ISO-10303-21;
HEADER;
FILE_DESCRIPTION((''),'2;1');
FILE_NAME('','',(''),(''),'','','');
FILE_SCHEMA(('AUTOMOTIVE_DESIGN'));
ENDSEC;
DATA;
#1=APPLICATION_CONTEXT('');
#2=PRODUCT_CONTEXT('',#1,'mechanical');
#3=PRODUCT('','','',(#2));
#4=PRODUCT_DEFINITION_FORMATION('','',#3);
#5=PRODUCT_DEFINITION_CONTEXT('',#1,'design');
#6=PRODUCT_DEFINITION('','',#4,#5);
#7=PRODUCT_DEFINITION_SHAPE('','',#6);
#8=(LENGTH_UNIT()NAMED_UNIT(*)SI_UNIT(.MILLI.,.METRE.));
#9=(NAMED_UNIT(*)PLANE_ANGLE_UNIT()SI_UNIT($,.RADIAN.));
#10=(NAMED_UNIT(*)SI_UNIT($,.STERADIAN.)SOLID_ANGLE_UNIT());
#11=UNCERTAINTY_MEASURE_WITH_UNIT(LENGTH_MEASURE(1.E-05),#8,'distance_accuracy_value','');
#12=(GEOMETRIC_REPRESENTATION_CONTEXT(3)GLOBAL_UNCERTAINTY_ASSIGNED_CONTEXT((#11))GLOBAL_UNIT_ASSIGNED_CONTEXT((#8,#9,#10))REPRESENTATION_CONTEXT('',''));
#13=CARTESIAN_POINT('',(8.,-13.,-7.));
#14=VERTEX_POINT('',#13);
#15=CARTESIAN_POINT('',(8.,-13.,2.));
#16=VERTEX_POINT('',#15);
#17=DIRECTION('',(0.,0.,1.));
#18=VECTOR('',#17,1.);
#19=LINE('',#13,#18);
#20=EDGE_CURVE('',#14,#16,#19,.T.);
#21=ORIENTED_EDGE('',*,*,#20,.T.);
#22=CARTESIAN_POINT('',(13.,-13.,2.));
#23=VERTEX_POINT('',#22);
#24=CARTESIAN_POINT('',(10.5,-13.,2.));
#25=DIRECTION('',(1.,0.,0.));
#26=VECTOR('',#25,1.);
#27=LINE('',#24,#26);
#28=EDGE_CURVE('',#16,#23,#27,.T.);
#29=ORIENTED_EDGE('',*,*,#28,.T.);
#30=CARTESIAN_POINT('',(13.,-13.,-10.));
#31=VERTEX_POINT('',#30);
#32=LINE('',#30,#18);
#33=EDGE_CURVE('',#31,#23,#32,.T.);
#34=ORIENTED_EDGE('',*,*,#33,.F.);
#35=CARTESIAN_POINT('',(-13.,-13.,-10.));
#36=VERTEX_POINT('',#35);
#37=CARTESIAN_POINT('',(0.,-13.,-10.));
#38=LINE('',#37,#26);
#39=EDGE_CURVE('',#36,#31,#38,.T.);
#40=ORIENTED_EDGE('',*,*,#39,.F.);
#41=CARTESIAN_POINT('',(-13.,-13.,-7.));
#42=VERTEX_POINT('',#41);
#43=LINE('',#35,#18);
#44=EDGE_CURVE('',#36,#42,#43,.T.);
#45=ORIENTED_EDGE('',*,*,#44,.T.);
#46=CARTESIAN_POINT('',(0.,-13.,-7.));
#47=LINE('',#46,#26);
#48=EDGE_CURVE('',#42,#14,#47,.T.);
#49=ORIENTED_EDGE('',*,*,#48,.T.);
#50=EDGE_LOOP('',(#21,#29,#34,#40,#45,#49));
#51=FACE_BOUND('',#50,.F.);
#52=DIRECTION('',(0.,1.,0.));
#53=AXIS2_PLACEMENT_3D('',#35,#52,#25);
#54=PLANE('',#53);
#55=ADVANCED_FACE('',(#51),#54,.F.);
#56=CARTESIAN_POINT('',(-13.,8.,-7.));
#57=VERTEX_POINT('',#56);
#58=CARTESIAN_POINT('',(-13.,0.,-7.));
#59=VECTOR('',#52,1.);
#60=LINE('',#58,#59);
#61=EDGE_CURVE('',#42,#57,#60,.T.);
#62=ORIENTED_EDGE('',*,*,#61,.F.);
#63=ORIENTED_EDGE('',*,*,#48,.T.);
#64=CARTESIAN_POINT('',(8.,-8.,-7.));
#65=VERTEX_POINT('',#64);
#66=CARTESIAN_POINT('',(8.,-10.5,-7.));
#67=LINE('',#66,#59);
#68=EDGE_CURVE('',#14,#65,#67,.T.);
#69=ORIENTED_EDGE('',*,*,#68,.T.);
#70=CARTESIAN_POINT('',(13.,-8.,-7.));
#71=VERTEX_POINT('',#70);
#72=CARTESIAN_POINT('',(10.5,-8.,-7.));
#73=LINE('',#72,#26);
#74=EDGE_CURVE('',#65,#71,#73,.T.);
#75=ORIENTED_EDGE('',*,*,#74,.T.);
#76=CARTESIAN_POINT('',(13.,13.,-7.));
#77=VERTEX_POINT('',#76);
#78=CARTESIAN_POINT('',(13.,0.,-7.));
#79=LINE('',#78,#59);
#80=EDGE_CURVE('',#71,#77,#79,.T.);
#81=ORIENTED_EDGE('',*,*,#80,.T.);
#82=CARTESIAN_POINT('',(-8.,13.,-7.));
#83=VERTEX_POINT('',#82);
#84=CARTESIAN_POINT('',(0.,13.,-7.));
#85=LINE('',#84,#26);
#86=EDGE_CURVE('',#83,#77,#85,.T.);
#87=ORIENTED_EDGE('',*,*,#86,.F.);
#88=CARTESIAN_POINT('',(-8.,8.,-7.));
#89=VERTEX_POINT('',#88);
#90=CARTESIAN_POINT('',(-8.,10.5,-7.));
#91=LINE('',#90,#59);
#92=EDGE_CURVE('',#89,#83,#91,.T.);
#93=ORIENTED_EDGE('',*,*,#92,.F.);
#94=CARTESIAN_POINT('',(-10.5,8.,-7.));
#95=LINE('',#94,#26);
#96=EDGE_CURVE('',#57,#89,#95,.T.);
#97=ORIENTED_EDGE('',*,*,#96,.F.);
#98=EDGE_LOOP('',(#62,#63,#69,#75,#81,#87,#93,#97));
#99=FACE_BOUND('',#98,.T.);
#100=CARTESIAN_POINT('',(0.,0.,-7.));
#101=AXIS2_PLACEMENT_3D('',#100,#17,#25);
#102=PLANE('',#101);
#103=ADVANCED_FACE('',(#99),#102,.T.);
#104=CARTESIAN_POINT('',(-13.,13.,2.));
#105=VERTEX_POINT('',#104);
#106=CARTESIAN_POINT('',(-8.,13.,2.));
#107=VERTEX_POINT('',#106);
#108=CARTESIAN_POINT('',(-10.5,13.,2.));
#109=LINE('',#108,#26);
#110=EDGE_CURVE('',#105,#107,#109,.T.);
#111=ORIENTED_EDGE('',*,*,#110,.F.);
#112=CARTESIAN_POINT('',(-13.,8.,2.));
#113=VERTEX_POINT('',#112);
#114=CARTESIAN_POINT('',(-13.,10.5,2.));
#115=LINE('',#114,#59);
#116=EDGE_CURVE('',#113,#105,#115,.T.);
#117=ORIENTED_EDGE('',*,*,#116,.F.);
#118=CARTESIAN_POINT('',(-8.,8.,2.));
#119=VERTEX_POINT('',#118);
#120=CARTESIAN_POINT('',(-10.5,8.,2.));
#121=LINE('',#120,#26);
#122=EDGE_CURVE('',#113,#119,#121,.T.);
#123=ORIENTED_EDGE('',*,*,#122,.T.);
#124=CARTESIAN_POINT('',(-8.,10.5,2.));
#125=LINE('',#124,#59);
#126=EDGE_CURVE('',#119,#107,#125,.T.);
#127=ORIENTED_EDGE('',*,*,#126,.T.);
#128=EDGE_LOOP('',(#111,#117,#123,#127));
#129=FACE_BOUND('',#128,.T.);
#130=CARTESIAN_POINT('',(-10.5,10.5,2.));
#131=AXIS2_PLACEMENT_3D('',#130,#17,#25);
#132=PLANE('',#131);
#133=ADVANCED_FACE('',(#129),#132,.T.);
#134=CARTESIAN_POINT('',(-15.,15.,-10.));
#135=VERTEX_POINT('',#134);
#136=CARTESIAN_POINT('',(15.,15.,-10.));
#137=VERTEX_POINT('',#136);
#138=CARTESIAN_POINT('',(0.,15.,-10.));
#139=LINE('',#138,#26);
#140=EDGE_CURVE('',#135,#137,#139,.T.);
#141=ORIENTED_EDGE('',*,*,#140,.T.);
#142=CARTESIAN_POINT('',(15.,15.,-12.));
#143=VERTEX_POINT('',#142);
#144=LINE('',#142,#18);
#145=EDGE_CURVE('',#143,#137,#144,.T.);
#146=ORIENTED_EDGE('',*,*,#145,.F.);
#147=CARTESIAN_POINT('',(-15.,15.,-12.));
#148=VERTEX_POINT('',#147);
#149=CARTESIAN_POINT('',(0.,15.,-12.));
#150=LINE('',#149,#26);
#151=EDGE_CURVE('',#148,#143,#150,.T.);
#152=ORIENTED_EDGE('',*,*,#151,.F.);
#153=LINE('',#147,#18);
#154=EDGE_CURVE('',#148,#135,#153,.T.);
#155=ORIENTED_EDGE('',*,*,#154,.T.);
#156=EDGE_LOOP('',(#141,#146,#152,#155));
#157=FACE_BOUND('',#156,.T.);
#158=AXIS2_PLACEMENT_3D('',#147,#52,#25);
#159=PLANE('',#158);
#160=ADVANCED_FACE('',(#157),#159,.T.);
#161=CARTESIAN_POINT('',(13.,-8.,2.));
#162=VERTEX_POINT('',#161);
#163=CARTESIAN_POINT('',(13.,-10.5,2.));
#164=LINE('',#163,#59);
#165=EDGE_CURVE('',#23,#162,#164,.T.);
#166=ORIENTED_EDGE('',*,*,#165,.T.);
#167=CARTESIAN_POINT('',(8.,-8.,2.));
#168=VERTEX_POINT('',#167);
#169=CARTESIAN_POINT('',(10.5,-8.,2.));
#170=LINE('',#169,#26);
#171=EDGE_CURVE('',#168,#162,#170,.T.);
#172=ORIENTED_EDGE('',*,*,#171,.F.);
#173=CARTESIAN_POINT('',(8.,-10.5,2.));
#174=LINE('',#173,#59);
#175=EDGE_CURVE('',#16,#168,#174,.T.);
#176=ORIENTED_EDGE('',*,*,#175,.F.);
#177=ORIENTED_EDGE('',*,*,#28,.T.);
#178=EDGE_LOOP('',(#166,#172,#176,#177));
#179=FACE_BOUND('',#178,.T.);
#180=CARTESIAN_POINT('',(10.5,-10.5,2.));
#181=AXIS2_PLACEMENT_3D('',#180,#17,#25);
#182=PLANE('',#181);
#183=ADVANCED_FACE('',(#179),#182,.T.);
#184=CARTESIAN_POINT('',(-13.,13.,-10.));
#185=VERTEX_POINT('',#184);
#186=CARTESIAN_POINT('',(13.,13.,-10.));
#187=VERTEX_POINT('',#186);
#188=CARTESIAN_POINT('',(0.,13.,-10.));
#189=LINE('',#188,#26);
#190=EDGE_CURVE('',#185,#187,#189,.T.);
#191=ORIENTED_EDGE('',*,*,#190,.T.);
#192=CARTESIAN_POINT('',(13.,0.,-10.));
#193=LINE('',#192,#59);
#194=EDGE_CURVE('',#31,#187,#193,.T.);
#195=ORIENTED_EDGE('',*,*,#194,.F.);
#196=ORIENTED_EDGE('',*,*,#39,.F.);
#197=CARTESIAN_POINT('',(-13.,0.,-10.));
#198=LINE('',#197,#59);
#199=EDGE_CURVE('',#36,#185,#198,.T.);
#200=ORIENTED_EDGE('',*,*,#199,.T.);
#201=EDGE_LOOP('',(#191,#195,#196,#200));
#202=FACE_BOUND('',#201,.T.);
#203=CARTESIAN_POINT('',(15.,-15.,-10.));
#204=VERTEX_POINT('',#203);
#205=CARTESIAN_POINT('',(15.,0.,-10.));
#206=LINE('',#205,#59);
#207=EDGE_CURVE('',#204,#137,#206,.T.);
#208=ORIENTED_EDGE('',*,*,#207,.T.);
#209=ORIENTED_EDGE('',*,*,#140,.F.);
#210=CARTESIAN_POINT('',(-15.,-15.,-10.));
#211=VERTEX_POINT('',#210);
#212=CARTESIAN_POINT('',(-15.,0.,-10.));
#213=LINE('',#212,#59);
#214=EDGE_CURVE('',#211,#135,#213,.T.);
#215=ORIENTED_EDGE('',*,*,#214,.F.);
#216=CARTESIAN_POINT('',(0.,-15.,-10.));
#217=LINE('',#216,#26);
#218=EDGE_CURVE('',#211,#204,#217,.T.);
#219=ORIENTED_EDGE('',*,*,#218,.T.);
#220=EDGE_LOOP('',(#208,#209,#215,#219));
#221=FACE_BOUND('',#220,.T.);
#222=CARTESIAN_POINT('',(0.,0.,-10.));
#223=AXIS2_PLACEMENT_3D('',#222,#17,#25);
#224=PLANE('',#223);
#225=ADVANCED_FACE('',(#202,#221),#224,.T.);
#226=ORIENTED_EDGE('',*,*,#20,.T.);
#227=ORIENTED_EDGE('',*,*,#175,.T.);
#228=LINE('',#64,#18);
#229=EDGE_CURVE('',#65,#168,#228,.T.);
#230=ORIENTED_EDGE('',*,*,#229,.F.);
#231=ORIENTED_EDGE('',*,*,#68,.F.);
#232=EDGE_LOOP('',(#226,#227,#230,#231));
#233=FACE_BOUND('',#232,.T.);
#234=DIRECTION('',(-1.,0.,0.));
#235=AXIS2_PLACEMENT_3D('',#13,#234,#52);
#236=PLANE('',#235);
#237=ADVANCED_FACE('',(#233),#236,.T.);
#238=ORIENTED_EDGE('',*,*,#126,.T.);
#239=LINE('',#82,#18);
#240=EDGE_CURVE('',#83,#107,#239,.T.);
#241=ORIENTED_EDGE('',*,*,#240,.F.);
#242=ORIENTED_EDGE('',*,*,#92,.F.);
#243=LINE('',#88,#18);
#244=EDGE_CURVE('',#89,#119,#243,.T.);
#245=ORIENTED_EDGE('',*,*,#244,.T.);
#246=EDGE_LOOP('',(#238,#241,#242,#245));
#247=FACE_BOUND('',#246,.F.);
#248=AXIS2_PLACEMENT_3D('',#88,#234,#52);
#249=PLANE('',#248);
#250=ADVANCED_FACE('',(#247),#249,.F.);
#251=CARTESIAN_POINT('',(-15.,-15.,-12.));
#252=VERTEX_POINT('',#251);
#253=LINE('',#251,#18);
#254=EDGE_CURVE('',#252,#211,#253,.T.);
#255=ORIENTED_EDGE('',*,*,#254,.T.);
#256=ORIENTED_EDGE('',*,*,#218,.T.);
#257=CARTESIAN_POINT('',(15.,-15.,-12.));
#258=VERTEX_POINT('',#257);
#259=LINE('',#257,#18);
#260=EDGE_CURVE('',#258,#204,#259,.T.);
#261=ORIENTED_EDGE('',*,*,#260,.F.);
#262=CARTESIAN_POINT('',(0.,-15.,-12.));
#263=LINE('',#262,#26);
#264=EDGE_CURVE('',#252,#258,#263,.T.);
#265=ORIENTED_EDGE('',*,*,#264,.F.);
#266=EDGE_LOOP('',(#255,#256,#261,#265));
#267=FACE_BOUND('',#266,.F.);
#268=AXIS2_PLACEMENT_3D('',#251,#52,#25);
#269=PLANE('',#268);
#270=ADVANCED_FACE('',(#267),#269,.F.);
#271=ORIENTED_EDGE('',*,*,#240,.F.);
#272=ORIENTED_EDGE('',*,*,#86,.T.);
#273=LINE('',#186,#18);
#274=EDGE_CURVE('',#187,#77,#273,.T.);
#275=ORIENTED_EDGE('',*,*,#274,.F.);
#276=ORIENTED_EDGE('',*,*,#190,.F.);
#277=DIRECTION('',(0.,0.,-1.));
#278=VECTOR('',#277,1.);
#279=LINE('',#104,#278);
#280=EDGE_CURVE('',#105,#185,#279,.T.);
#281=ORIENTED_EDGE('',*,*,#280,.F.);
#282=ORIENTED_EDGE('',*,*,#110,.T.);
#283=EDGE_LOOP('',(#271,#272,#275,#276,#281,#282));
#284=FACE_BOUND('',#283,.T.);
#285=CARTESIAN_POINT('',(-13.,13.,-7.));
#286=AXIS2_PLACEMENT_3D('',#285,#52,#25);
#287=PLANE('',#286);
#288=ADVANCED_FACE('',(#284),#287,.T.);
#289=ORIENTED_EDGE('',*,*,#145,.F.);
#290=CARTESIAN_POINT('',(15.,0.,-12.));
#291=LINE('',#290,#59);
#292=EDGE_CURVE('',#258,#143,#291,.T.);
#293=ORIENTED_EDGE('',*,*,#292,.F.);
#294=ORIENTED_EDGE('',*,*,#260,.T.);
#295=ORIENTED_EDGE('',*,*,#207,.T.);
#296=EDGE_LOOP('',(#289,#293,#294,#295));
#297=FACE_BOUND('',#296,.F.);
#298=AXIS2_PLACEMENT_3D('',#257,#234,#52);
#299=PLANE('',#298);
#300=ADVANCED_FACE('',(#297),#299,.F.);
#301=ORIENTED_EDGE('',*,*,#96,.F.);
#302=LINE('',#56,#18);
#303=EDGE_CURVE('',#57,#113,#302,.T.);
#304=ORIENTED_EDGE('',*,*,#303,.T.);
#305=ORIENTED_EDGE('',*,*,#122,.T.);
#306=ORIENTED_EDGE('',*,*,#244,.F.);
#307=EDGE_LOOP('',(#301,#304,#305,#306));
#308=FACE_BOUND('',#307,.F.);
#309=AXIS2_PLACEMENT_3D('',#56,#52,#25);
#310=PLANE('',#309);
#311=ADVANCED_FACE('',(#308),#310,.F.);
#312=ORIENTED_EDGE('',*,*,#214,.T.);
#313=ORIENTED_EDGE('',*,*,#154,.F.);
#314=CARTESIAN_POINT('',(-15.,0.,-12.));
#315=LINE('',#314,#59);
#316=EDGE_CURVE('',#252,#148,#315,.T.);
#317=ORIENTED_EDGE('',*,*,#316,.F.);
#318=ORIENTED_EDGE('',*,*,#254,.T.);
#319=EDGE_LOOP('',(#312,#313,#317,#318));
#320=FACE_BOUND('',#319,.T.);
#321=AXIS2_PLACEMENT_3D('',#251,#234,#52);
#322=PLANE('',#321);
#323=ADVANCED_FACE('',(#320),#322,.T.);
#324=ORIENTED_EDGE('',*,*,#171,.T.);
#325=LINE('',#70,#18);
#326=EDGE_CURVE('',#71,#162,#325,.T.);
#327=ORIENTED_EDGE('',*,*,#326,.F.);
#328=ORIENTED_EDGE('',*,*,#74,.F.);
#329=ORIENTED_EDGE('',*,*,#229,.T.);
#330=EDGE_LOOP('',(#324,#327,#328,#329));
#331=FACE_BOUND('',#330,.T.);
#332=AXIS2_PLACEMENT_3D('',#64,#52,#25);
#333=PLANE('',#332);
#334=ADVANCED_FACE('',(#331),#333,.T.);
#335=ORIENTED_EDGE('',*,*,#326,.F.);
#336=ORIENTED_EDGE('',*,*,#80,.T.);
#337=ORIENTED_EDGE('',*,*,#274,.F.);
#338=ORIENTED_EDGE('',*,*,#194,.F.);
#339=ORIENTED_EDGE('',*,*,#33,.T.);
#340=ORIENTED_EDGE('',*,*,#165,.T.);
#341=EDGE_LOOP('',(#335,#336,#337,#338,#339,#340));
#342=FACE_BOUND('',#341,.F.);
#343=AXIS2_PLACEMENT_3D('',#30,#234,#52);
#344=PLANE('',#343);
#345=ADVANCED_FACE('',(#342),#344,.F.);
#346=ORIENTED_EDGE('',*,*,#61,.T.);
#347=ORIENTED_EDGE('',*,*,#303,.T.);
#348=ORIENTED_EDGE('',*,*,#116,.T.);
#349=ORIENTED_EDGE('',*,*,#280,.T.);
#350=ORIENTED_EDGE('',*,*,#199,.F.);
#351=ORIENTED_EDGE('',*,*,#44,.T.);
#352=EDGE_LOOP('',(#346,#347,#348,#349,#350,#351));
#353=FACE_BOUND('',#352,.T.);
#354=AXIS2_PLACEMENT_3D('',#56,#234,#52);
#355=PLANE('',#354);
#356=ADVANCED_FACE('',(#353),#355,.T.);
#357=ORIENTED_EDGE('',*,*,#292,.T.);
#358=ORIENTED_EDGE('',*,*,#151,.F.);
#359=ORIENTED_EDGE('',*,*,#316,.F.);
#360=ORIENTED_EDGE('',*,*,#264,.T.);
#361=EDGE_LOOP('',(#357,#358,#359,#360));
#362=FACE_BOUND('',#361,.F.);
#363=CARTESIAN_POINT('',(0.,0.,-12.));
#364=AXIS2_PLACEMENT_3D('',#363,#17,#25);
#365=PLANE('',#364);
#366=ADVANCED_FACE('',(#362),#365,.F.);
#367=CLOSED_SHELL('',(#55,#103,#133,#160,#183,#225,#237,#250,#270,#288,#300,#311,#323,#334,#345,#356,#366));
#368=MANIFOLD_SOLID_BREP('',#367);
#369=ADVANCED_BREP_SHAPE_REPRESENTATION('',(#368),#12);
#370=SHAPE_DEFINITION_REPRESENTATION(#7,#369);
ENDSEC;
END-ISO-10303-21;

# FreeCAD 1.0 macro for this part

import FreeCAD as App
import Part
import Sketcher

V = App.Vector
Q = App.Units.Quantity


def add_polygon(sketch, points):
    """Adds a closed chain of lines whose ends are joined by coincident constraints."""
    first, n = sketch.GeometryCount, len(points)
    for a, b in zip(points, points[1:] + points[:1]):
        sketch.addGeometry(Part.LineSegment(App.Vector(*a, 0), App.Vector(*b, 0)), False)
    for i in range(n):
        sketch.addConstraint(Sketcher.Constraint("Coincident", first + i, 2, first + (i + 1) % n, 1))

doc = App.newDocument("Part")
body = doc.addObject("PartDesign::Body", "Body")

# Sketch on XY plane
sketch1 = body.newObject("Sketcher::SketchObject", "Sketch")
sketch1.AttachmentSupport = (doc.getObject("XY_Plane"), [""])
sketch1.MapMode = "FlatFace"
sketch1.AttachmentOffset = App.Placement(V(0, 0, -10), App.Rotation())
add_polygon(sketch1, [(-13, 13), (-13, -13), (13, -13), (13, 13)])  # lines 0-3
sketch1.addConstraint([
    Sketcher.Constraint("Vertical", 0),
    Sketcher.Constraint("Horizontal", 1),
    Sketcher.Constraint("Vertical", 2),
    Sketcher.Constraint("Horizontal", 3),
    Sketcher.Constraint("Symmetric", 0, 2, 2, 2, -1, 1),
    Sketcher.Constraint("Equal", 3, 0),
    Sketcher.Constraint("DistanceX", 1, 1, 1, 2, Q("26 mm")),
])
pad1 = body.newObject("PartDesign::Pad", "Pad")
pad1.Profile = sketch1
pad1.Length = 3
body2 = doc.addObject("PartDesign::Body", "Body001")

# Sketch on XY plane
sketch2 = body2.newObject("Sketcher::SketchObject", "Sketch001")
sketch2.AttachmentSupport = (doc.getObject("XY_Plane001"), [""])
sketch2.MapMode = "FlatFace"
sketch2.AttachmentOffset = App.Placement(V(0, 0, -7), App.Rotation())
add_polygon(sketch2, [(-13, 13), (-13, 8), (-8, 8), (-8, 13)])  # lines 0-3
sketch2.addConstraint([
    Sketcher.Constraint("Vertical", 0),
    Sketcher.Constraint("Horizontal", 1),
    Sketcher.Constraint("Vertical", 2),
    Sketcher.Constraint("Horizontal", 3),
    Sketcher.Constraint("Equal", 3, 0),
    Sketcher.Constraint("DistanceX", 1, 1, 1, 2, Q("5 mm")),
    Sketcher.Constraint("DistanceX", 0, 2, -1, 1, Q("13 mm")),
    Sketcher.Constraint("DistanceY", -1, 1, 0, 2, Q("8 mm")),
])
pad2 = body2.newObject("PartDesign::Pad", "Pad001")
pad2.Profile = sketch2
pad2.Length = 9
body3 = doc.addObject("PartDesign::Body", "Body002")

# Sketch on XY plane
sketch3 = body3.newObject("Sketcher::SketchObject", "Sketch002")
sketch3.AttachmentSupport = (doc.getObject("XY_Plane002"), [""])
sketch3.MapMode = "FlatFace"
sketch3.AttachmentOffset = App.Placement(V(0, 0, -12), App.Rotation())
add_polygon(sketch3, [(-15, 15), (-15, -15), (15, -15), (15, 15)])  # lines 0-3
sketch3.addConstraint([
    Sketcher.Constraint("Vertical", 0),
    Sketcher.Constraint("Horizontal", 1),
    Sketcher.Constraint("Vertical", 2),
    Sketcher.Constraint("Horizontal", 3),
    Sketcher.Constraint("Symmetric", 0, 2, 2, 2, -1, 1),
    Sketcher.Constraint("Equal", 3, 0),
    Sketcher.Constraint("DistanceX", 1, 1, 1, 2, Q("30 mm")),
])
pad3 = body3.newObject("PartDesign::Pad", "Pad002")
pad3.Profile = sketch3
pad3.Length = 2
body4 = doc.addObject("PartDesign::Body", "Body003")

# Sketch on XY plane
sketch4 = body4.newObject("Sketcher::SketchObject", "Sketch003")
sketch4.AttachmentSupport = (doc.getObject("XY_Plane003"), [""])
sketch4.MapMode = "FlatFace"
sketch4.AttachmentOffset = App.Placement(V(0, 0, -7), App.Rotation())
add_polygon(sketch4, [(8, -8), (8, -13), (13, -13), (13, -8)])  # lines 0-3
sketch4.addConstraint([
    Sketcher.Constraint("Vertical", 0),
    Sketcher.Constraint("Horizontal", 1),
    Sketcher.Constraint("Vertical", 2),
    Sketcher.Constraint("Horizontal", 3),
    Sketcher.Constraint("Equal", 3, 0),
    Sketcher.Constraint("DistanceX", 1, 1, 1, 2, Q("5 mm")),
    Sketcher.Constraint("DistanceX", -1, 1, 0, 2, Q("8 mm")),
    Sketcher.Constraint("DistanceY", 0, 2, -1, 1, Q("13 mm")),
])
pad4 = body4.newObject("PartDesign::Pad", "Pad003")
pad4.Profile = sketch4
pad4.Length = 9
doc.recompute()

boolean = body4.newObject("PartDesign::Boolean", "Boolean")
boolean.Type = "Fuse"
boolean.addObjects([body])
doc.recompute()

boolean2 = body4.newObject("PartDesign::Boolean", "Boolean001")
boolean2.Type = "Fuse"
boolean2.addObjects([body2])
doc.recompute()

boolean3 = body4.newObject("PartDesign::Boolean", "Boolean002")
boolean3.Type = "Fuse"
boolean3.addObjects([body3])

doc.recompute()
